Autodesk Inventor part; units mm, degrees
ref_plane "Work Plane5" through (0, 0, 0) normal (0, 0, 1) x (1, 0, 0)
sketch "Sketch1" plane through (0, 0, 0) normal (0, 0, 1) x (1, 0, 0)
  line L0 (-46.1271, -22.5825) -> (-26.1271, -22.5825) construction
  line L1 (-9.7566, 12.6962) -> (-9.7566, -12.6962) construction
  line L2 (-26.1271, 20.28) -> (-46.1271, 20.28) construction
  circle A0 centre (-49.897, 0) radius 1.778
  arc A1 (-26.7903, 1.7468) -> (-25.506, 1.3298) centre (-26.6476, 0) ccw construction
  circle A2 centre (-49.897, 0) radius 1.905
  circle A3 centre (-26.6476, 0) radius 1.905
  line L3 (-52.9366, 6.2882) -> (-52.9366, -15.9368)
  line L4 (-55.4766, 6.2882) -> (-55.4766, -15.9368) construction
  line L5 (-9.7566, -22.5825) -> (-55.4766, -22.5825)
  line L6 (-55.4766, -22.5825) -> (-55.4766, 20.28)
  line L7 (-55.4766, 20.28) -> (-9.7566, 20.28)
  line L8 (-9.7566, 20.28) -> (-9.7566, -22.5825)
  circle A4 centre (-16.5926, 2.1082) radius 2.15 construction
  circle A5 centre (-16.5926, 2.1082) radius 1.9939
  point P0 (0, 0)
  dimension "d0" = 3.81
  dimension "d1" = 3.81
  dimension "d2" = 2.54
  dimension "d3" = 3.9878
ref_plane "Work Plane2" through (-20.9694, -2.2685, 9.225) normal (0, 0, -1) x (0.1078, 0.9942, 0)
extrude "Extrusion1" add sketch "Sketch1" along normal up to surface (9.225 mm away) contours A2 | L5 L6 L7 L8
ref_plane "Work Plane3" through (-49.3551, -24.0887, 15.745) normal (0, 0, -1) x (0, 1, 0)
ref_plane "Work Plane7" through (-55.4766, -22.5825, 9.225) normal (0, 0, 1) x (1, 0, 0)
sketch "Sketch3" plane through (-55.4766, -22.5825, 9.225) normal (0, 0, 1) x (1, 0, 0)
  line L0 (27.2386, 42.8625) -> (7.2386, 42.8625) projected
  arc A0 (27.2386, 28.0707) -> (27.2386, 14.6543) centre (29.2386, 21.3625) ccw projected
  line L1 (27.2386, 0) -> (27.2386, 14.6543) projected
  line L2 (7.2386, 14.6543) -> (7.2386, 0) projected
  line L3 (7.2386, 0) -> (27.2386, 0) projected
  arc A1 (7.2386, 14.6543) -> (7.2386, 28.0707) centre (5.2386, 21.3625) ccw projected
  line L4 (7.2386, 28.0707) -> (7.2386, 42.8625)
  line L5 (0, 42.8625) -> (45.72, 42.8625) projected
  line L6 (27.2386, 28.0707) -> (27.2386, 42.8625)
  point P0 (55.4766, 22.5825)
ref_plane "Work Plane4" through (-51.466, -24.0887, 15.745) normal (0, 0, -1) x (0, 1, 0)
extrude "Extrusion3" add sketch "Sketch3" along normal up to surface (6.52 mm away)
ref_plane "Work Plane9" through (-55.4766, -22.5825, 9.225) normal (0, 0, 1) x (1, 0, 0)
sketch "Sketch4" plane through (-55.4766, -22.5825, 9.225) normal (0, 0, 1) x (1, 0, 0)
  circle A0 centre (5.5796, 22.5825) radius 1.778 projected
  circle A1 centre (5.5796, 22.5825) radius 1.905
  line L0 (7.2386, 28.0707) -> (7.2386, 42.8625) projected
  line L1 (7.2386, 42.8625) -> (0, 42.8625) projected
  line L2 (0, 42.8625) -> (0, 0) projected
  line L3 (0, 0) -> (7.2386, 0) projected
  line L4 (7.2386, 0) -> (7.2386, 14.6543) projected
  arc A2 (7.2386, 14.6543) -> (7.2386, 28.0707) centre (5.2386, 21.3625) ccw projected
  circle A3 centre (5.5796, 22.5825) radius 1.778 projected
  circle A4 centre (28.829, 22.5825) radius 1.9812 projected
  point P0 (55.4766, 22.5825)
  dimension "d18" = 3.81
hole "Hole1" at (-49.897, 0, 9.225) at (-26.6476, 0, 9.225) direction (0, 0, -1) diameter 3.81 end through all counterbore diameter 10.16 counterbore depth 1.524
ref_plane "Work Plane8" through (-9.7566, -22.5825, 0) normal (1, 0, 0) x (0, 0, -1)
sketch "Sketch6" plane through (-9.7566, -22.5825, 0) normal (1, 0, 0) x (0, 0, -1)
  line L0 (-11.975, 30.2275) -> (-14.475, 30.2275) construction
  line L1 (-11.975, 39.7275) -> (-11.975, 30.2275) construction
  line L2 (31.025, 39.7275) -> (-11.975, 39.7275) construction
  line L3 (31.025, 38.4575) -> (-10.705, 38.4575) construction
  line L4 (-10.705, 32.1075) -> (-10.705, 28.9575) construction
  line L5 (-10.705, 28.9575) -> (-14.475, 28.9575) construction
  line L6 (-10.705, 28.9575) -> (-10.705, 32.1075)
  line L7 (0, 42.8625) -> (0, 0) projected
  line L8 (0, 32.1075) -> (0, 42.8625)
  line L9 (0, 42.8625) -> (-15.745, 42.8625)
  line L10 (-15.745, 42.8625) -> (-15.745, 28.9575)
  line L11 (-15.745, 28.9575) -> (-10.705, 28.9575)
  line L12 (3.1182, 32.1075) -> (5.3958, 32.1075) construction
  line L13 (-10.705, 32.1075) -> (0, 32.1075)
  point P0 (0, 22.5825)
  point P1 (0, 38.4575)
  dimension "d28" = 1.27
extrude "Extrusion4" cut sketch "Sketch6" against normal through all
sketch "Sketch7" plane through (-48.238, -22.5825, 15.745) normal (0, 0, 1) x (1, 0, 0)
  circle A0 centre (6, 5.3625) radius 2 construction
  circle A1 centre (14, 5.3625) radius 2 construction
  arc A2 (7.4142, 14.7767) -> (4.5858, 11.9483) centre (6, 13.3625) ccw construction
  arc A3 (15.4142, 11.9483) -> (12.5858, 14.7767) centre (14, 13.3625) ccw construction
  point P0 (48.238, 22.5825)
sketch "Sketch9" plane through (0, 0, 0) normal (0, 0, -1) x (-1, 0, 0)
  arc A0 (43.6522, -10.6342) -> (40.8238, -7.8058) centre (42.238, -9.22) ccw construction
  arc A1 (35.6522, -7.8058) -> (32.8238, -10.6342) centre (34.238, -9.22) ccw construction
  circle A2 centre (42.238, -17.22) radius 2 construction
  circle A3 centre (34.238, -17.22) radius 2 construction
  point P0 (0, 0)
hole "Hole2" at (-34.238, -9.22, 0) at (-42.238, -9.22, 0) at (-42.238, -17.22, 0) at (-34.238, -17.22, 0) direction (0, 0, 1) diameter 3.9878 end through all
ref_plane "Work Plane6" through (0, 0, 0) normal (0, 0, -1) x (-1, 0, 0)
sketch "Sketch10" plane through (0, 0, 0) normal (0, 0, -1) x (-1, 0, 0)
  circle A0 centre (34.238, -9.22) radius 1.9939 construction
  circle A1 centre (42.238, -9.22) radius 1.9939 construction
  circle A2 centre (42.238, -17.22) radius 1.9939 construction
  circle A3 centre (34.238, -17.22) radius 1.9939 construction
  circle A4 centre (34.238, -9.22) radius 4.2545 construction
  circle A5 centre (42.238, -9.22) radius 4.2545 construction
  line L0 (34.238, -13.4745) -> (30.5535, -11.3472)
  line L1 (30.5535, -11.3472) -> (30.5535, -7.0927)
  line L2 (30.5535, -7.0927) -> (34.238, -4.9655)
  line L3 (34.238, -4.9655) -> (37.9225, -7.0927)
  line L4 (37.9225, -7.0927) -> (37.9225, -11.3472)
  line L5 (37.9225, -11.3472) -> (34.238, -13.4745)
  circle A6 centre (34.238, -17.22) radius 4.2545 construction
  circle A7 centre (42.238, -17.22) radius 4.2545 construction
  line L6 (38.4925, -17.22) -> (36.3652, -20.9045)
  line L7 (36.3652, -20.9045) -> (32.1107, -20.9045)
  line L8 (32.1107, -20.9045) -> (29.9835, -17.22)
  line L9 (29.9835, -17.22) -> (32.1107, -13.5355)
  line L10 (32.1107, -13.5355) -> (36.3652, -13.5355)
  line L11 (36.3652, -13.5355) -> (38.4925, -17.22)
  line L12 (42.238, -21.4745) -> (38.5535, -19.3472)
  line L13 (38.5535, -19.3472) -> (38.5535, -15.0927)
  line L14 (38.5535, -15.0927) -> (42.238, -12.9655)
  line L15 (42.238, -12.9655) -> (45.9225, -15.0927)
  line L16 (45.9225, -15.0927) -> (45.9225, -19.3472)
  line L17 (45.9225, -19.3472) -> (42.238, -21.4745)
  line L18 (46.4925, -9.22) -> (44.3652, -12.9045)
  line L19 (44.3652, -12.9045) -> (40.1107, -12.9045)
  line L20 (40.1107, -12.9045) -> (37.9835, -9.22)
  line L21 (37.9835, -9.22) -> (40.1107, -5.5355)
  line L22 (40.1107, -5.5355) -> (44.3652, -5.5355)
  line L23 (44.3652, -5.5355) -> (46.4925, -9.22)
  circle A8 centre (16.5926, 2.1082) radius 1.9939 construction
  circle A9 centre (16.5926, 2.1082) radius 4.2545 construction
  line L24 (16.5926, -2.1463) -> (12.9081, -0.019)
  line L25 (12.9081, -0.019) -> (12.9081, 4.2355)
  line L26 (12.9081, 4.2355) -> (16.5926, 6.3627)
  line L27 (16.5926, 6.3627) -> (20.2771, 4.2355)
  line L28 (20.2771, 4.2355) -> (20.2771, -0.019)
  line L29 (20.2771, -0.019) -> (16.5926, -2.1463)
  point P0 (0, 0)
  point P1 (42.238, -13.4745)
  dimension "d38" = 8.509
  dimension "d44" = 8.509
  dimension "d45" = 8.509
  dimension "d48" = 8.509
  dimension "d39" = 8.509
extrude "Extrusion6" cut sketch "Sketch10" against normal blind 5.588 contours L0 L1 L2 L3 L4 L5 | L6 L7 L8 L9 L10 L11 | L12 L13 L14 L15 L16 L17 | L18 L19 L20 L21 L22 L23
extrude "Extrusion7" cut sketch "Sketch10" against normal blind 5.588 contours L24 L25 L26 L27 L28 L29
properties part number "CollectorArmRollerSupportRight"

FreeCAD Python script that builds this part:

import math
import FreeCAD as App
import Part
import Sketcher
from FreeCAD import Vector
Q = App.Units.Quantity


def add_polygon(sketch, points):
    """Adds a closed chain of lines whose ends are joined by coincident constraints."""
    first, n = sketch.GeometryCount, len(points)
    for a, b in zip(points, points[1:] + points[:1]):
        sketch.addGeometry(Part.LineSegment(App.Vector(*a, 0), App.Vector(*b, 0)), False)
    for i in range(n):
        sketch.addConstraint(Sketcher.Constraint("Coincident", first + i, 2, first + (i + 1) % n, 1))

doc = App.newDocument("Part")
body = doc.addObject("PartDesign::Body", "Body")

# Sketch on XY plane
sketch1 = doc.addObject("Sketcher::SketchObject", "Sketch")
body.addObject(sketch1)
sketch1.AttachmentSupport = (doc.XY_Plane, [""])
sketch1.MapMode = "FlatFace"
add_polygon(sketch1, [(-55.5, -22.6), (-9.8, -22.6), (-9.8, 20.3), (-55.5, 20.3)])  # lines 0-3
sketch1.addGeometry(Part.Circle(Vector(-49.9, 0, 0), Vector(0, 0, 1), 1.8), False)  # 4
sketch1.addGeometry(Part.Circle(Vector(-16.6, 2.1, 0), Vector(0, 0, 1), 2), False)  # 5
sketch1.addGeometry(Part.Circle(Vector(-26.6, 0, 0), Vector(0, 0, 1), 1.9), False)  # 6
sketch1.addConstraint([
    Sketcher.Constraint("Horizontal", 0),
    Sketcher.Constraint("Vertical", 1),
    Sketcher.Constraint("Horizontal", 2),
    Sketcher.Constraint("Vertical", 3),
    Sketcher.Constraint("PointOnObject", 4, 3, -1),
    Sketcher.Constraint("PointOnObject", 6, 3, -1),
    Sketcher.Constraint("Diameter", 6, Q("0.15 in")),
    Sketcher.Constraint("Diameter", 5, Q("0.157 in")),
    Sketcher.Constraint("Diameter", 4, Q("0.14 in")),
    Sketcher.Constraint("DistanceX", 0, 1, 0, 2, Q("1.8 in")),
    Sketcher.Constraint("DistanceY", 1, 1, 1, 2, Q("1.6875 in")),
    Sketcher.Constraint("DistanceY", -1, 1, 5, 3, Q("0.083 in")),
    Sketcher.Constraint("DistanceX", 6, 3, 0, 2, Q("0.665 in")),
    Sketcher.Constraint("DistanceX", 4, 3, 5, 3, Q("1.3112 in")),
    Sketcher.Constraint("DistanceX", 4, 3, -1, 1, 49.897),
    Sketcher.Constraint("DistanceX", 6, 3, -1, 1, 26.6476),
    Sketcher.Constraint("DistanceY", 0, 2, -1, 1, 22.5825),
])
pad1 = doc.addObject("PartDesign::Pad", "Pad")
body.addObject(pad1)
pad1.Profile = sketch1
pad1.Length = Q("0.363189 in")

# Sketch on XY plane
sketch2 = doc.addObject("Sketcher::SketchObject", "Sketch001")
body.addObject(sketch2)
sketch2.AttachmentSupport = (doc.XY_Plane, [""])
sketch2.MapMode = "FlatFace"
sketch2.AttachmentOffset = App.Placement(Vector(0, 0, 0.363189 * 25.4), App.Rotation())
sketch2.addGeometry([
    Part.LineSegment(Vector(-28, 5, 0), Vector(-28, 20, 0)),  # 0
    Part.LineSegment(Vector(-28, 20, 0), Vector(-48, 20, 0)),  # 1
    Part.LineSegment(Vector(-48, 20, 0), Vector(-48, 5, 0)),  # 2
    Part.ArcOfCircle(Part.Circle(Vector(-50, -1, 0), Vector(0, 0, 1), 7), math.radians(-73), math.radians(73)),  # 3
    Part.LineSegment(Vector(-48, -8, 0), Vector(-48, -23, 0)),  # 4
    Part.LineSegment(Vector(-48, -23, 0), Vector(-28, -23, 0)),  # 5
    Part.LineSegment(Vector(-28, -23, 0), Vector(-28, -8, 0)),  # 6
    Part.ArcOfCircle(Part.Circle(Vector(-26, -1, 0), Vector(0, 0, 1), 7), math.radians(107), math.radians(253)),  # 7
], False)
sketch2.addConstraint([
    Sketcher.Constraint("Coincident", 0, 2, 1, 1),
    Sketcher.Constraint("Coincident", 1, 2, 2, 1),
    Sketcher.Constraint("Coincident", 2, 2, 3, 2),
    Sketcher.Constraint("Coincident", 3, 1, 4, 1),
    Sketcher.Constraint("Coincident", 4, 2, 5, 1),
    Sketcher.Constraint("Coincident", 5, 2, 6, 1),
    Sketcher.Constraint("Coincident", 6, 2, 7, 2),
    Sketcher.Constraint("Coincident", 7, 1, 0, 1),
    Sketcher.Constraint("Vertical", 0),
    Sketcher.Constraint("Horizontal", 1),
    Sketcher.Constraint("Vertical", 2),
    Sketcher.Constraint("Vertical", 4),
    Sketcher.Constraint("Horizontal", 5),
    Sketcher.Constraint("Vertical", 6),
    Sketcher.Constraint("Equal", 3, 7),
    Sketcher.Constraint("Horizontal", 3, 3, 7, 3),
    Sketcher.Constraint("Horizontal", 3, 1, 6, 2),
    Sketcher.Constraint("Horizontal", 2, 2, 7, 1),
    Sketcher.Constraint("Vertical", 2, 2, 3, 1),
    Sketcher.Constraint("Radius", 3, Q("0.2756 in")),
    Sketcher.Constraint("DistanceX", 1, 2, 1, 1, Q("0.7874 in")),
    Sketcher.Constraint("DistanceX", 7, 3, -1, 1, Q("1.033 in")),
    Sketcher.Constraint("DistanceY", 4, 2, 1, 2, Q("1.6875 in")),
    Sketcher.Constraint("DistanceY", 0, 1, 0, 2, 14.7918),
    Sketcher.Constraint("DistanceY", 4, 2, 4, 1, 14.6543),
    Sketcher.Constraint("DistanceY", 3, 3, -1, 1, 1.22),
])
pad2 = doc.addObject("PartDesign::Pad", "Pad001")
body.addObject(pad2)
pad2.Profile = sketch2
pad2.Length = Q("0.2566929 in")

# Sketch on XY plane
sketch3 = doc.addObject("Sketcher::SketchObject", "Sketch002")
body.addObject(sketch3)
sketch3.AttachmentSupport = (doc.XY_Plane, [""])
sketch3.MapMode = "FlatFace"
sketch3.AttachmentOffset = App.Placement(Vector(0, 0, 0.363189 * 25.4), App.Rotation())
sketch3.addGeometry([
    Part.Circle(Vector(-49.9, 0, 0), Vector(0, 0, 1), 1.9),
    Part.Circle(Vector(-26.6, 0, 0), Vector(0, 0, 1), 1.9),
], False)
sketch3.addConstraint([
    Sketcher.Constraint("Equal", 0, 1),
    Sketcher.Constraint("PointOnObject", 0, 3, -1),
    Sketcher.Constraint("PointOnObject", 1, 3, -1),
    Sketcher.Constraint("Diameter", 0, Q("0.15 in")),
    Sketcher.Constraint("DistanceX", 0, 3, -1, 1, 49.897),
    Sketcher.Constraint("DistanceX", 1, 3, -1, 1, 26.6476),
])
doc.recompute()
hole = doc.addObject("PartDesign::Hole", "Hole")
body.addObject(hole)
hole.Profile = sketch3
hole.ThreadType = "None"
hole.Diameter = Q("0.15 in")
hole.DepthType = "ThroughAll"
hole.HoleCutType = "Counterbore"
hole.HoleCutDiameter = Q("0.4 in")
hole.HoleCutDepth = Q("0.06 in")

# Sketch on YZ plane
sketch4 = doc.addObject("Sketcher::SketchObject", "Sketch003")
body.addObject(sketch4)
sketch4.AttachmentSupport = (doc.YZ_Plane, [""])
sketch4.MapMode = "FlatFace"
sketch4.AttachmentOffset = App.Placement(Vector(0, 0, -9.7566), App.Rotation())
add_polygon(sketch4, [(6.4, 15.7), (6.4, 10.7), (9.5, 10.7), (9.5, 0), (20.3, 0), (20.3, 15.7)])  # lines 0-5
sketch4.addConstraint([
    Sketcher.Constraint("Vertical", 0),
    Sketcher.Constraint("Horizontal", 1),
    Sketcher.Constraint("Vertical", 2),
    Sketcher.Constraint("Horizontal", 3),
    Sketcher.Constraint("Vertical", 4),
    Sketcher.Constraint("Horizontal", 5),
    Sketcher.Constraint("PointOnObject", 2, 2, -1),
    Sketcher.Constraint("DistanceX", -1, 1, 1, 2, Q("0.375 in")),
    Sketcher.Constraint("DistanceX", 1, 1, 1, 2, 3.15),
    Sketcher.Constraint("DistanceX", 3, 1, 3, 2, 10.755),
    Sketcher.Constraint("DistanceY", 0, 2, 0, 1, 5.04),
    Sketcher.Constraint("DistanceY", 2, 2, 2, 1, 10.705),
])
pocket1 = doc.addObject("PartDesign::Pocket", "Pocket")
body.addObject(pocket1)
pocket1.Profile = sketch4
pocket1.Type = "ThroughAll"

# Sketch on XY plane
sketch5 = doc.addObject("Sketcher::SketchObject", "Sketch004")
body.addObject(sketch5)
sketch5.AttachmentSupport = (doc.XY_Plane, [""])
sketch5.MapMode = "FlatFace"
sketch5.addGeometry([
    Part.Circle(Vector(-34.2, -9.2, 0), Vector(0, 0, 1), 2),
    Part.Circle(Vector(-42.2, -9.2, 0), Vector(0, 0, 1), 2),
    Part.Circle(Vector(-42.2, -17.2, 0), Vector(0, 0, 1), 2),
    Part.Circle(Vector(-34.2, -17.2, 0), Vector(0, 0, 1), 2),
], False)
sketch5.addConstraint([
    Sketcher.Constraint("Equal", 0, 1),
    Sketcher.Constraint("Equal", 1, 2),
    Sketcher.Constraint("Equal", 2, 3),
    Sketcher.Constraint("Horizontal", 0, 3, 1, 3),
    Sketcher.Constraint("Horizontal", 2, 3, 3, 3),
    Sketcher.Constraint("Vertical", 1, 3, 2, 3),
    Sketcher.Constraint("Vertical", 0, 3, 3, 3),
    Sketcher.Constraint("Diameter", 0, Q("0.157 in")),
    Sketcher.Constraint("DistanceY", 0, 3, -1, 1, Q("0.363 in")),
    Sketcher.Constraint("DistanceX", 0, 3, -1, 1, 34.238),
    Sketcher.Constraint("DistanceX", 1, 3, -1, 1, 42.238),
    Sketcher.Constraint("DistanceY", 2, 3, -1, 1, 17.22),
])
doc.recompute()
hole2 = doc.addObject("PartDesign::Hole", "Hole001")
body.addObject(hole2)
hole2.Profile = sketch5
hole2.ThreadType = "None"
hole2.Diameter = Q("0.157 in")
hole2.DepthType = "ThroughAll"
hole2.Reversed = True

# Sketch on XY plane
sketch6 = doc.addObject("Sketcher::SketchObject", "Sketch005")
body.addObject(sketch6)
sketch6.AttachmentSupport = (doc.XY_Plane, [""])
sketch6.MapMode = "FlatFace"
add_polygon(sketch6, [(-30.6, -11.3), (-34.2, -13.5), (-37.9, -11.3), (-37.9, -7.1), (-34.2, -5), (-30.6, -7.1)])  # lines 0-5
add_polygon(sketch6, [(-36.4, -20.9), (-38.5, -17.2), (-36.4, -13.5), (-32.1, -13.5), (-30, -17.2), (-32.1, -20.9)])  # lines 6-11
add_polygon(sketch6, [(-38.6, -19.3), (-42.2, -21.5), (-45.9, -19.3), (-45.9, -15.1), (-42.2, -13), (-38.6, -15.1)])  # lines 12-17
add_polygon(sketch6, [(-44.4, -12.9), (-46.5, -9.2), (-44.4, -5.5), (-40.1, -5.5), (-38, -9.2), (-40.1, -12.9)])  # lines 18-23
sketch6.addConstraint([
    Sketcher.Constraint("Vertical", 2),
    Sketcher.Constraint("Vertical", 5),
    Sketcher.Constraint("Horizontal", 8),
    Sketcher.Constraint("Horizontal", 11),
    Sketcher.Constraint("Vertical", 14),
    Sketcher.Constraint("Vertical", 17),
    Sketcher.Constraint("Horizontal", 20),
    Sketcher.Constraint("Horizontal", 23),
    Sketcher.Constraint("Parallel", 0, 3),
    Sketcher.Constraint("Parallel", 1, 4),
    Sketcher.Constraint("Perpendicular", 3, 6),
    Sketcher.Constraint("Perpendicular", 4, 7),
    Sketcher.Constraint("Parallel", 6, 9),
    Sketcher.Constraint("Parallel", 7, 10),
    Sketcher.Constraint("Perpendicular", 9, 12),
    Sketcher.Constraint("Perpendicular", 10, 13),
    Sketcher.Constraint("Parallel", 12, 15),
    Sketcher.Constraint("Parallel", 13, 16),
    Sketcher.Constraint("Perpendicular", 15, 18),
    Sketcher.Constraint("Perpendicular", 16, 19),
    Sketcher.Constraint("Parallel", 18, 21),
    Sketcher.Constraint("Parallel", 19, 22),
    Sketcher.Constraint("Horizontal", 2, 2, 4, 2),
    Sketcher.Constraint("Horizontal", 1, 2, 5, 2),
    Sketcher.Constraint("Horizontal", 6, 2, 9, 2),
    Sketcher.Constraint("Horizontal", 14, 2, 16, 2),
    Sketcher.Constraint("Horizontal", 13, 2, 17, 2),
    Sketcher.Constraint("Horizontal", 18, 2, 21, 2),
    Sketcher.Constraint("Vertical", 0, 2, 3, 2),
    Sketcher.Constraint("Vertical", 8, 2, 10, 2),
    Sketcher.Constraint("Vertical", 20, 2, 22, 2),
    Sketcher.Constraint("Equal", 11, 20),
    Sketcher.Constraint("Equal", 23, 2),
    Sketcher.Constraint("Equal", 5, 14),
    Sketcher.Constraint("Equal", 4, 6),
    Sketcher.Constraint("Equal", 10, 12),
    Sketcher.Constraint("Equal", 16, 18),
    Sketcher.Constraint("Angle", 0, Q("-149.9994 deg")),
    Sketcher.Constraint("DistanceY", 0, 2, 3, 2, Q("0.335 in")),
    Sketcher.Constraint("DistanceX", 8, 1, 8, 2, Q("0.1675 in")),
    Sketcher.Constraint("DistanceX", 1, 2, -1, 1, Q("1.493 in")),
    Sketcher.Constraint("DistanceY", 10, 2, -1, 1, Q("0.823 in")),
    Sketcher.Constraint("DistanceY", 18, 2, -1, 1, Q("0.363 in")),
    Sketcher.Constraint("DistanceY", 0, 2, -1, 1, Q("0.5305 in")),
    Sketcher.Constraint("DistanceX", 7, 2, -1, 1, Q("1.4317 in")),
    Sketcher.Constraint("DistanceY", 13, 2, -1, 1, Q("0.7617 in")),
    Sketcher.Constraint("DistanceX", 12, 2, 1, 2, Q("0.1699 in")),
    Sketcher.Constraint("DistanceX", 18, 2, 15, 2, Q("0.1675 in")),
])
pocket2 = doc.addObject("PartDesign::Pocket", "Pocket001")
body.addObject(pocket2)
pocket2.Profile = sketch6
pocket2.Length = Q("0.22 in")
pocket2.Reversed = True

# Sketch on XY plane
sketch7 = doc.addObject("Sketcher::SketchObject", "Sketch006")
body.addObject(sketch7)
sketch7.AttachmentSupport = (doc.XY_Plane, [""])
sketch7.MapMode = "FlatFace"
add_polygon(sketch7, [(-12.9, 0), (-16.6, -2.1), (-20.3, 0), (-20.3, 4.2), (-16.6, 6.4), (-12.9, 4.2)])  # lines 0-5
sketch7.addConstraint([
    Sketcher.Constraint("Vertical", 2),
    Sketcher.Constraint("Vertical", 5),
    Sketcher.Constraint("Parallel", 0, 3),
    Sketcher.Constraint("Parallel", 1, 4),
    Sketcher.Constraint("Horizontal", 2, 2, 4, 2),
    Sketcher.Constraint("Horizontal", 1, 2, 5, 2),
    Sketcher.Constraint("Vertical", 0, 2, 3, 2),
    Sketcher.Constraint("Angle", 0, Q("-149.9994 deg")),
    Sketcher.Constraint("DistanceY", 0, 2, 3, 2, Q("0.335 in")),
    Sketcher.Constraint("DistanceY", 2, 1, 2, 2, Q("0.1675 in")),
    Sketcher.Constraint("DistanceY", 0, 2, -1, 1, Q("0.0845 in")),
    Sketcher.Constraint("DistanceX", 1, 2, -1, 1, Q("0.7983 in")),
])
pocket3 = doc.addObject("PartDesign::Pocket", "Pocket002")
body.addObject(pocket3)
pocket3.Profile = sketch7
pocket3.Length = Q("0.22 in")
pocket3.Reversed = True

doc.recompute()
